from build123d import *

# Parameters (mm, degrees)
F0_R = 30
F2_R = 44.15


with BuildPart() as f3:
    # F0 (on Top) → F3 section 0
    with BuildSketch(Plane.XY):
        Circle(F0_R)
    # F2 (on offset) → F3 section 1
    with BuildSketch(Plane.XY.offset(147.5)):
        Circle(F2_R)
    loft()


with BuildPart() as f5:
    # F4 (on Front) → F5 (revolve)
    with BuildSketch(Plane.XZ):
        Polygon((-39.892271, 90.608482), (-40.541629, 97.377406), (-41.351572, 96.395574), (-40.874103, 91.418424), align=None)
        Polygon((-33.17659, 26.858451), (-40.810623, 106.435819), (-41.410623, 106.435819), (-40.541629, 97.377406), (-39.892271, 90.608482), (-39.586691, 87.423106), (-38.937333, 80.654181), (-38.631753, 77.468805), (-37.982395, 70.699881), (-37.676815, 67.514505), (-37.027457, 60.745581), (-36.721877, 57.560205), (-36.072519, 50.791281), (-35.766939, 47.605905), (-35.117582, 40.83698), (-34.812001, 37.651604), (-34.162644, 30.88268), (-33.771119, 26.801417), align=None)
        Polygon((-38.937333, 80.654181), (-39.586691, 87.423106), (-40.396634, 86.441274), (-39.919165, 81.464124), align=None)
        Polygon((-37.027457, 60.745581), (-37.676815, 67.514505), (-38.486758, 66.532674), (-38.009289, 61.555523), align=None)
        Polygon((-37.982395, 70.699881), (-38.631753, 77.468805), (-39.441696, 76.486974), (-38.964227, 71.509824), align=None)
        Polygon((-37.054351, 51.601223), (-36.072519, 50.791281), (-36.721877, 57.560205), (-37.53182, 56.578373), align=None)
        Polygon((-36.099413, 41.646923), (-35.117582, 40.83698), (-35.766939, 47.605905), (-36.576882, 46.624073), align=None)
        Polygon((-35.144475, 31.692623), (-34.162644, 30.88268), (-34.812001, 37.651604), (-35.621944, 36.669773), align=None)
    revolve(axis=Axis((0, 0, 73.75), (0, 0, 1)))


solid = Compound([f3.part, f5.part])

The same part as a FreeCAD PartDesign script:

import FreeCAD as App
import Part
import Sketcher


def add_polygon(sketch, points):
    """Adds a closed chain of lines whose ends are joined by coincident constraints."""
    first, n = sketch.GeometryCount, len(points)
    for a, b in zip(points, points[1:] + points[:1]):
        sketch.addGeometry(Part.LineSegment(App.Vector(*a, 0), App.Vector(*b, 0)), False)
    for i in range(n):
        sketch.addConstraint(Sketcher.Constraint("Coincident", first + i, 2, first + (i + 1) % n, 1))

doc = App.newDocument("Part")
body = doc.addObject("PartDesign::Body", "Body")

# Sketch on XY plane
sketch1 = body.newObject("Sketcher::SketchObject", "Sketch")
sketch1.AttachmentSupport = (doc.getObject("XY_Plane"), [""])
sketch1.MapMode = "FlatFace"
sketch1.addGeometry(Part.Circle(App.Vector(0, 0, 0), App.Vector(0, 0, 1), 30), False)
sketch1.addConstraint([
    Sketcher.Constraint("Coincident", 0, 3, -1, 1),
    Sketcher.Constraint("Diameter", 0, 60.0),
])

# Sketch on XY plane
sketch2 = body.newObject("Sketcher::SketchObject", "Sketch001")
sketch2.AttachmentSupport = (doc.getObject("XY_Plane"), [""])
sketch2.MapMode = "FlatFace"
sketch2.AttachmentOffset = App.Placement(App.Vector(0, 0, 147.5), App.Rotation())
sketch2.addGeometry(Part.Circle(App.Vector(0, 0, 0), App.Vector(0, 0, 1), 44), False)
sketch2.addConstraint([
    Sketcher.Constraint("Coincident", 0, 3, -1, 1),
    Sketcher.Constraint("Diameter", 0, 88.3),
])

additiveloft = body.newObject("PartDesign::AdditiveLoft", "AdditiveLoft")
additiveloft.Profile = sketch1
additiveloft.Sections = [sketch2]
body2 = doc.addObject("PartDesign::Body", "Body001")

# Sketch on XZ plane
sketch3 = body2.newObject("Sketcher::SketchObject", "Sketch002")
sketch3.AttachmentSupport = (doc.getObject("XZ_Plane001"), [""])
sketch3.MapMode = "FlatFace"
add_polygon(sketch3, [(-40.5, 97.4), (-41.4, 96.4), (-40.9, 91.4), (-39.9, 90.6), (-39.6, 87.4), (-40.4, 86.4), (-39.9, 81.5), (-38.9, 80.7), (-38.6, 77.5), (-39.4, 76.5), (-39, 71.5), (-38, 70.7), (-37.7, 67.5), (-38.5, 66.5), (-38, 61.6), (-37, 60.7), (-36.7, 57.6), (-37.5, 56.6), (-37.1, 51.6), (-36.1, 50.8), (-35.8, 47.6), (-36.6, 46.6), (-36.1, 41.6), (-35.1, 40.8), (-34.8, 37.7), (-35.6, 36.7), (-35.1, 31.7), (-34.2, 30.9), (-33.8, 26.8), (-33.2, 26.9), (-40.8, 106.4), (-41.4, 106.4)])  # lines 0-31
sketch3.addConstraint([
    Sketcher.Constraint("Horizontal", 30),
    Sketcher.Constraint("Perpendicular", 0, 2),
    Sketcher.Constraint("Parallel", 1, 3),
    Sketcher.Constraint("Perpendicular", 2, 4),
    Sketcher.Constraint("Parallel", 3, 5),
    Sketcher.Constraint("Perpendicular", 4, 6),
    Sketcher.Constraint("Parallel", 5, 7),
    Sketcher.Constraint("Perpendicular", 6, 8),
    Sketcher.Constraint("Parallel", 7, 9),
    Sketcher.Constraint("Perpendicular", 8, 10),
    Sketcher.Constraint("Parallel", 9, 11),
    Sketcher.Constraint("Perpendicular", 10, 12),
    Sketcher.Constraint("Parallel", 11, 13),
    Sketcher.Constraint("Perpendicular", 12, 14),
    Sketcher.Constraint("Parallel", 13, 15),
    Sketcher.Constraint("Perpendicular", 14, 16),
    Sketcher.Constraint("Parallel", 15, 17),
    Sketcher.Constraint("Perpendicular", 16, 18),
    Sketcher.Constraint("Parallel", 17, 19),
    Sketcher.Constraint("Perpendicular", 18, 20),
    Sketcher.Constraint("Parallel", 19, 21),
    Sketcher.Constraint("Perpendicular", 20, 22),
    Sketcher.Constraint("Parallel", 21, 23),
    Sketcher.Constraint("Perpendicular", 22, 24),
    Sketcher.Constraint("Parallel", 23, 25),
    Sketcher.Constraint("Perpendicular", 24, 26),
    Sketcher.Constraint("Parallel", 25, 27),
    Sketcher.Constraint("Perpendicular", 27, 28),
    Sketcher.Constraint("Perpendicular", 28, 29),
    Sketcher.Constraint("Parallel", 29, 31),
    Sketcher.Constraint("Equal", 0, 2),
    Sketcher.Constraint("Equal", 2, 4),
    Sketcher.Constraint("Equal", 1, 5),
    Sketcher.Constraint("Equal", 4, 6),
    Sketcher.Constraint("Equal", 3, 7),
    Sketcher.Constraint("Equal", 6, 8),
    Sketcher.Constraint("Equal", 5, 9),
    Sketcher.Constraint("Equal", 8, 10),
    Sketcher.Constraint("Equal", 7, 11),
    Sketcher.Constraint("Equal", 10, 12),
    Sketcher.Constraint("Equal", 9, 13),
    Sketcher.Constraint("Equal", 12, 14),
    Sketcher.Constraint("Equal", 11, 15),
    Sketcher.Constraint("Equal", 14, 16),
    Sketcher.Constraint("Equal", 13, 17),
    Sketcher.Constraint("Equal", 16, 18),
    Sketcher.Constraint("Equal", 15, 19),
    Sketcher.Constraint("Equal", 18, 20),
    Sketcher.Constraint("Equal", 17, 21),
    Sketcher.Constraint("Equal", 20, 22),
    Sketcher.Constraint("Equal", 19, 23),
    Sketcher.Constraint("Equal", 22, 24),
    Sketcher.Constraint("Equal", 21, 25),
    Sketcher.Constraint("Equal", 24, 26),
    Sketcher.Constraint("Distance", 1, 5.0),
    Sketcher.Constraint("DistanceX", 30, 2, 30, 1, 0.6),
    Sketcher.Constraint("Distance", 3, 3.2),
    Sketcher.Constraint("Distance", 27, 4.1),
    Sketcher.Constraint("Distance", 31, 9.1),
    Sketcher.Constraint("DistanceX", 23, 2, -1, 1, 34.812001),
    Sketcher.Constraint("DistanceX", 0, 2, 2, 2, 1.459301),
    Sketcher.Constraint("DistanceY", 4, 2, 0, 2, 9.9543),
    Sketcher.Constraint("Distance", 28, 0.597258),
    Sketcher.Constraint("DistanceY", -1, 1, 2, 2, 90.608482),
])
revolution = body2.newObject("PartDesign::Revolution", "Revolution")
revolution.Profile = sketch3
revolution.ReferenceAxis = (sketch3, ["V_Axis"])
revolution.Angle = 360

doc.recompute()
